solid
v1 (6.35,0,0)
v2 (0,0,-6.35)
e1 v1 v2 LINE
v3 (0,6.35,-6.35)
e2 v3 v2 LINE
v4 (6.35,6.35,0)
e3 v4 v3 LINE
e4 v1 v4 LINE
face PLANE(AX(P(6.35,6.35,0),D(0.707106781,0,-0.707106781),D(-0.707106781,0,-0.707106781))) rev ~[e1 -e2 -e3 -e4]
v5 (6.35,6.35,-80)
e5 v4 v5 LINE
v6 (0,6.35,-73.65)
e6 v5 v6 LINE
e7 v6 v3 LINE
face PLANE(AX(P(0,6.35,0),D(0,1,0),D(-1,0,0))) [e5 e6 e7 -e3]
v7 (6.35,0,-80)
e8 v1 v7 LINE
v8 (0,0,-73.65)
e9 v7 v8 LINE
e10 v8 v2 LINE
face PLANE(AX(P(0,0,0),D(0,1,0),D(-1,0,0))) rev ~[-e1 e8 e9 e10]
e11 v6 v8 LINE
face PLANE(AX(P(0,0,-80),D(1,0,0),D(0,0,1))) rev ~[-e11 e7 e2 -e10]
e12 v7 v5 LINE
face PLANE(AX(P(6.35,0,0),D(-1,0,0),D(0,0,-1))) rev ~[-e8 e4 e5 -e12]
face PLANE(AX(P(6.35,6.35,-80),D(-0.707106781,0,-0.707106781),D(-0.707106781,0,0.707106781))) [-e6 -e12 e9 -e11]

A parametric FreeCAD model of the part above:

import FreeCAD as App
import Part
import Sketcher
Q = App.Units.Quantity


def add_polygon(sketch, points):
    """Adds a closed chain of lines whose ends are joined by coincident constraints."""
    first, n = sketch.GeometryCount, len(points)
    for a, b in zip(points, points[1:] + points[:1]):
        sketch.addGeometry(Part.LineSegment(App.Vector(*a, 0), App.Vector(*b, 0)), False)
    for i in range(n):
        sketch.addConstraint(Sketcher.Constraint("Coincident", first + i, 2, first + (i + 1) % n, 1))

doc = App.newDocument("Part")
body = doc.addObject("PartDesign::Body", "Body")

# Sketch on XZ plane
sketch1 = body.newObject("Sketcher::SketchObject", "Sketch")
sketch1.AttachmentSupport = (doc.getObject("XZ_Plane"), [""])
sketch1.MapMode = "FlatFace"
add_polygon(sketch1, [(0, -80), (0, 0), (6, 0), (6, -80)])  # lines 0-3
sketch1.addConstraint([
    Sketcher.Constraint("Vertical", 0),
    Sketcher.Constraint("Horizontal", 1),
    Sketcher.Constraint("Vertical", 2),
    Sketcher.Constraint("Horizontal", 3),
    Sketcher.Constraint("Coincident", 0, 2, -1, 1),
    Sketcher.Constraint("DistanceX", 1, 1, 1, 2, Q("0.25 in")),
    Sketcher.Constraint("DistanceY", 0, 1, 0, 2, Q("3.1496 in")),
])
pad1 = body.newObject("PartDesign::Pad", "Pad")
pad1.Profile = sketch1
pad1.Length = Q("0.25 in")
pad1.Reversed = True

# Sketch on XZ plane
sketch2 = body.newObject("Sketcher::SketchObject", "Sketch001")
sketch2.AttachmentSupport = (doc.getObject("XZ_Plane"), [""])
sketch2.MapMode = "FlatFace"
sketch2.AttachmentOffset = App.Placement(App.Vector(0, 0, -0.25 * 25.4), App.Rotation())
add_polygon(sketch2, [(0, -6), (0, 0), (6, 0)])  # lines 0-2
sketch2.addConstraint([
    Sketcher.Constraint("Vertical", 0),
    Sketcher.Constraint("Horizontal", 1),
    Sketcher.Constraint("Coincident", 0, 2, -1, 1),
    Sketcher.Constraint("Equal", 1, 0),
    Sketcher.Constraint("DistanceX", 1, 1, 1, 2, Q("0.25 in")),
])
pocket1 = body.newObject("PartDesign::Pocket", "Pocket")
pocket1.Profile = sketch2
pocket1.Length = Q("0.3937008 in")
pocket1.Reversed = True

# Sketch on XZ plane
sketch3 = body.newObject("Sketcher::SketchObject", "Sketch002")
sketch3.AttachmentSupport = (doc.getObject("XZ_Plane"), [""])
sketch3.MapMode = "FlatFace"
sketch3.AttachmentOffset = App.Placement(App.Vector(0, 0, -0.25 * 25.4), App.Rotation())
add_polygon(sketch3, [(0, -74), (6, -80), (0, -80)])  # lines 0-2
sketch3.addConstraint([
    Sketcher.Constraint("Horizontal", 1),
    Sketcher.Constraint("Vertical", 2),
    Sketcher.Constraint("PointOnObject", 1, 2, -2),
    Sketcher.Constraint("Equal", 1, 2),
    Sketcher.Constraint("DistanceX", 1, 2, 1, 1, Q("0.25 in")),
    Sketcher.Constraint("DistanceY", 0, 2, -1, 1, Q("3.1496 in")),
])
pocket2 = body.newObject("PartDesign::Pocket", "Pocket001")
pocket2.Profile = sketch3
pocket2.Length = Q("0.3937008 in")
pocket2.Reversed = True

doc.recompute()
